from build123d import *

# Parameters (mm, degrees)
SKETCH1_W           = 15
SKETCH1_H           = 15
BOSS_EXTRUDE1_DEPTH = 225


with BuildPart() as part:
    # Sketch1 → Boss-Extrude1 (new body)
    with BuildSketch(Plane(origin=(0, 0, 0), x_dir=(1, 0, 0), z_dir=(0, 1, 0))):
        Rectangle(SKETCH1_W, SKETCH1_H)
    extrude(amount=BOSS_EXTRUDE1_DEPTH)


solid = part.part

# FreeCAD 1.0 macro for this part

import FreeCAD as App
import Part
import Sketcher
from FreeCAD import Vector
Q = App.Units.Quantity

doc = App.newDocument("Part")
body = doc.addObject("PartDesign::Body", "Body")

sketch1 = body.newObject("Sketcher::SketchObject", "Sketch")
sketch1.AttachmentSupport = (doc.getObject("XZ_Plane"), [""])
sketch1.MapMode = "FlatFace"
sketch1.addGeometry(Part.LineSegment(Vector(-8, -8, 0), Vector(-8, 8, 0)), False)
sketch1.addGeometry(Part.LineSegment(Vector(-8, 8, 0), Vector(8, 8, 0)), False)
sketch1.addGeometry(Part.LineSegment(Vector(8, 8, 0), Vector(8, -8, 0)), False)
sketch1.addGeometry(Part.LineSegment(Vector(8, -8, 0), Vector(-8, -8, 0)), False)
sketch1.addConstraint(Sketcher.Constraint("Coincident", 0, 2, 1, 1))
sketch1.addConstraint(Sketcher.Constraint("Coincident", 1, 2, 2, 1))
sketch1.addConstraint(Sketcher.Constraint("Coincident", 2, 2, 3, 1))
sketch1.addConstraint(Sketcher.Constraint("Coincident", 3, 2, 0, 1))
sketch1.addConstraint(Sketcher.Constraint("Vertical", 0))
sketch1.addConstraint(Sketcher.Constraint("Horizontal", 1))
sketch1.addConstraint(Sketcher.Constraint("Vertical", 2))
sketch1.addConstraint(Sketcher.Constraint("Horizontal", 3))
sketch1.addConstraint(Sketcher.Constraint("Symmetric", 0, 2, 2, 2, -1, 1))
sketch1.addConstraint(Sketcher.Constraint("Equal", 3, 0))
sketch1.addConstraint(Sketcher.Constraint("DistanceX", 1, 1, 1, 2, Q("15 mm")))
pad1 = body.newObject("PartDesign::Pad", "Pad")
pad1.Profile = sketch1
pad1.Length = 225
pad1.Reversed = True

doc.recompute()
